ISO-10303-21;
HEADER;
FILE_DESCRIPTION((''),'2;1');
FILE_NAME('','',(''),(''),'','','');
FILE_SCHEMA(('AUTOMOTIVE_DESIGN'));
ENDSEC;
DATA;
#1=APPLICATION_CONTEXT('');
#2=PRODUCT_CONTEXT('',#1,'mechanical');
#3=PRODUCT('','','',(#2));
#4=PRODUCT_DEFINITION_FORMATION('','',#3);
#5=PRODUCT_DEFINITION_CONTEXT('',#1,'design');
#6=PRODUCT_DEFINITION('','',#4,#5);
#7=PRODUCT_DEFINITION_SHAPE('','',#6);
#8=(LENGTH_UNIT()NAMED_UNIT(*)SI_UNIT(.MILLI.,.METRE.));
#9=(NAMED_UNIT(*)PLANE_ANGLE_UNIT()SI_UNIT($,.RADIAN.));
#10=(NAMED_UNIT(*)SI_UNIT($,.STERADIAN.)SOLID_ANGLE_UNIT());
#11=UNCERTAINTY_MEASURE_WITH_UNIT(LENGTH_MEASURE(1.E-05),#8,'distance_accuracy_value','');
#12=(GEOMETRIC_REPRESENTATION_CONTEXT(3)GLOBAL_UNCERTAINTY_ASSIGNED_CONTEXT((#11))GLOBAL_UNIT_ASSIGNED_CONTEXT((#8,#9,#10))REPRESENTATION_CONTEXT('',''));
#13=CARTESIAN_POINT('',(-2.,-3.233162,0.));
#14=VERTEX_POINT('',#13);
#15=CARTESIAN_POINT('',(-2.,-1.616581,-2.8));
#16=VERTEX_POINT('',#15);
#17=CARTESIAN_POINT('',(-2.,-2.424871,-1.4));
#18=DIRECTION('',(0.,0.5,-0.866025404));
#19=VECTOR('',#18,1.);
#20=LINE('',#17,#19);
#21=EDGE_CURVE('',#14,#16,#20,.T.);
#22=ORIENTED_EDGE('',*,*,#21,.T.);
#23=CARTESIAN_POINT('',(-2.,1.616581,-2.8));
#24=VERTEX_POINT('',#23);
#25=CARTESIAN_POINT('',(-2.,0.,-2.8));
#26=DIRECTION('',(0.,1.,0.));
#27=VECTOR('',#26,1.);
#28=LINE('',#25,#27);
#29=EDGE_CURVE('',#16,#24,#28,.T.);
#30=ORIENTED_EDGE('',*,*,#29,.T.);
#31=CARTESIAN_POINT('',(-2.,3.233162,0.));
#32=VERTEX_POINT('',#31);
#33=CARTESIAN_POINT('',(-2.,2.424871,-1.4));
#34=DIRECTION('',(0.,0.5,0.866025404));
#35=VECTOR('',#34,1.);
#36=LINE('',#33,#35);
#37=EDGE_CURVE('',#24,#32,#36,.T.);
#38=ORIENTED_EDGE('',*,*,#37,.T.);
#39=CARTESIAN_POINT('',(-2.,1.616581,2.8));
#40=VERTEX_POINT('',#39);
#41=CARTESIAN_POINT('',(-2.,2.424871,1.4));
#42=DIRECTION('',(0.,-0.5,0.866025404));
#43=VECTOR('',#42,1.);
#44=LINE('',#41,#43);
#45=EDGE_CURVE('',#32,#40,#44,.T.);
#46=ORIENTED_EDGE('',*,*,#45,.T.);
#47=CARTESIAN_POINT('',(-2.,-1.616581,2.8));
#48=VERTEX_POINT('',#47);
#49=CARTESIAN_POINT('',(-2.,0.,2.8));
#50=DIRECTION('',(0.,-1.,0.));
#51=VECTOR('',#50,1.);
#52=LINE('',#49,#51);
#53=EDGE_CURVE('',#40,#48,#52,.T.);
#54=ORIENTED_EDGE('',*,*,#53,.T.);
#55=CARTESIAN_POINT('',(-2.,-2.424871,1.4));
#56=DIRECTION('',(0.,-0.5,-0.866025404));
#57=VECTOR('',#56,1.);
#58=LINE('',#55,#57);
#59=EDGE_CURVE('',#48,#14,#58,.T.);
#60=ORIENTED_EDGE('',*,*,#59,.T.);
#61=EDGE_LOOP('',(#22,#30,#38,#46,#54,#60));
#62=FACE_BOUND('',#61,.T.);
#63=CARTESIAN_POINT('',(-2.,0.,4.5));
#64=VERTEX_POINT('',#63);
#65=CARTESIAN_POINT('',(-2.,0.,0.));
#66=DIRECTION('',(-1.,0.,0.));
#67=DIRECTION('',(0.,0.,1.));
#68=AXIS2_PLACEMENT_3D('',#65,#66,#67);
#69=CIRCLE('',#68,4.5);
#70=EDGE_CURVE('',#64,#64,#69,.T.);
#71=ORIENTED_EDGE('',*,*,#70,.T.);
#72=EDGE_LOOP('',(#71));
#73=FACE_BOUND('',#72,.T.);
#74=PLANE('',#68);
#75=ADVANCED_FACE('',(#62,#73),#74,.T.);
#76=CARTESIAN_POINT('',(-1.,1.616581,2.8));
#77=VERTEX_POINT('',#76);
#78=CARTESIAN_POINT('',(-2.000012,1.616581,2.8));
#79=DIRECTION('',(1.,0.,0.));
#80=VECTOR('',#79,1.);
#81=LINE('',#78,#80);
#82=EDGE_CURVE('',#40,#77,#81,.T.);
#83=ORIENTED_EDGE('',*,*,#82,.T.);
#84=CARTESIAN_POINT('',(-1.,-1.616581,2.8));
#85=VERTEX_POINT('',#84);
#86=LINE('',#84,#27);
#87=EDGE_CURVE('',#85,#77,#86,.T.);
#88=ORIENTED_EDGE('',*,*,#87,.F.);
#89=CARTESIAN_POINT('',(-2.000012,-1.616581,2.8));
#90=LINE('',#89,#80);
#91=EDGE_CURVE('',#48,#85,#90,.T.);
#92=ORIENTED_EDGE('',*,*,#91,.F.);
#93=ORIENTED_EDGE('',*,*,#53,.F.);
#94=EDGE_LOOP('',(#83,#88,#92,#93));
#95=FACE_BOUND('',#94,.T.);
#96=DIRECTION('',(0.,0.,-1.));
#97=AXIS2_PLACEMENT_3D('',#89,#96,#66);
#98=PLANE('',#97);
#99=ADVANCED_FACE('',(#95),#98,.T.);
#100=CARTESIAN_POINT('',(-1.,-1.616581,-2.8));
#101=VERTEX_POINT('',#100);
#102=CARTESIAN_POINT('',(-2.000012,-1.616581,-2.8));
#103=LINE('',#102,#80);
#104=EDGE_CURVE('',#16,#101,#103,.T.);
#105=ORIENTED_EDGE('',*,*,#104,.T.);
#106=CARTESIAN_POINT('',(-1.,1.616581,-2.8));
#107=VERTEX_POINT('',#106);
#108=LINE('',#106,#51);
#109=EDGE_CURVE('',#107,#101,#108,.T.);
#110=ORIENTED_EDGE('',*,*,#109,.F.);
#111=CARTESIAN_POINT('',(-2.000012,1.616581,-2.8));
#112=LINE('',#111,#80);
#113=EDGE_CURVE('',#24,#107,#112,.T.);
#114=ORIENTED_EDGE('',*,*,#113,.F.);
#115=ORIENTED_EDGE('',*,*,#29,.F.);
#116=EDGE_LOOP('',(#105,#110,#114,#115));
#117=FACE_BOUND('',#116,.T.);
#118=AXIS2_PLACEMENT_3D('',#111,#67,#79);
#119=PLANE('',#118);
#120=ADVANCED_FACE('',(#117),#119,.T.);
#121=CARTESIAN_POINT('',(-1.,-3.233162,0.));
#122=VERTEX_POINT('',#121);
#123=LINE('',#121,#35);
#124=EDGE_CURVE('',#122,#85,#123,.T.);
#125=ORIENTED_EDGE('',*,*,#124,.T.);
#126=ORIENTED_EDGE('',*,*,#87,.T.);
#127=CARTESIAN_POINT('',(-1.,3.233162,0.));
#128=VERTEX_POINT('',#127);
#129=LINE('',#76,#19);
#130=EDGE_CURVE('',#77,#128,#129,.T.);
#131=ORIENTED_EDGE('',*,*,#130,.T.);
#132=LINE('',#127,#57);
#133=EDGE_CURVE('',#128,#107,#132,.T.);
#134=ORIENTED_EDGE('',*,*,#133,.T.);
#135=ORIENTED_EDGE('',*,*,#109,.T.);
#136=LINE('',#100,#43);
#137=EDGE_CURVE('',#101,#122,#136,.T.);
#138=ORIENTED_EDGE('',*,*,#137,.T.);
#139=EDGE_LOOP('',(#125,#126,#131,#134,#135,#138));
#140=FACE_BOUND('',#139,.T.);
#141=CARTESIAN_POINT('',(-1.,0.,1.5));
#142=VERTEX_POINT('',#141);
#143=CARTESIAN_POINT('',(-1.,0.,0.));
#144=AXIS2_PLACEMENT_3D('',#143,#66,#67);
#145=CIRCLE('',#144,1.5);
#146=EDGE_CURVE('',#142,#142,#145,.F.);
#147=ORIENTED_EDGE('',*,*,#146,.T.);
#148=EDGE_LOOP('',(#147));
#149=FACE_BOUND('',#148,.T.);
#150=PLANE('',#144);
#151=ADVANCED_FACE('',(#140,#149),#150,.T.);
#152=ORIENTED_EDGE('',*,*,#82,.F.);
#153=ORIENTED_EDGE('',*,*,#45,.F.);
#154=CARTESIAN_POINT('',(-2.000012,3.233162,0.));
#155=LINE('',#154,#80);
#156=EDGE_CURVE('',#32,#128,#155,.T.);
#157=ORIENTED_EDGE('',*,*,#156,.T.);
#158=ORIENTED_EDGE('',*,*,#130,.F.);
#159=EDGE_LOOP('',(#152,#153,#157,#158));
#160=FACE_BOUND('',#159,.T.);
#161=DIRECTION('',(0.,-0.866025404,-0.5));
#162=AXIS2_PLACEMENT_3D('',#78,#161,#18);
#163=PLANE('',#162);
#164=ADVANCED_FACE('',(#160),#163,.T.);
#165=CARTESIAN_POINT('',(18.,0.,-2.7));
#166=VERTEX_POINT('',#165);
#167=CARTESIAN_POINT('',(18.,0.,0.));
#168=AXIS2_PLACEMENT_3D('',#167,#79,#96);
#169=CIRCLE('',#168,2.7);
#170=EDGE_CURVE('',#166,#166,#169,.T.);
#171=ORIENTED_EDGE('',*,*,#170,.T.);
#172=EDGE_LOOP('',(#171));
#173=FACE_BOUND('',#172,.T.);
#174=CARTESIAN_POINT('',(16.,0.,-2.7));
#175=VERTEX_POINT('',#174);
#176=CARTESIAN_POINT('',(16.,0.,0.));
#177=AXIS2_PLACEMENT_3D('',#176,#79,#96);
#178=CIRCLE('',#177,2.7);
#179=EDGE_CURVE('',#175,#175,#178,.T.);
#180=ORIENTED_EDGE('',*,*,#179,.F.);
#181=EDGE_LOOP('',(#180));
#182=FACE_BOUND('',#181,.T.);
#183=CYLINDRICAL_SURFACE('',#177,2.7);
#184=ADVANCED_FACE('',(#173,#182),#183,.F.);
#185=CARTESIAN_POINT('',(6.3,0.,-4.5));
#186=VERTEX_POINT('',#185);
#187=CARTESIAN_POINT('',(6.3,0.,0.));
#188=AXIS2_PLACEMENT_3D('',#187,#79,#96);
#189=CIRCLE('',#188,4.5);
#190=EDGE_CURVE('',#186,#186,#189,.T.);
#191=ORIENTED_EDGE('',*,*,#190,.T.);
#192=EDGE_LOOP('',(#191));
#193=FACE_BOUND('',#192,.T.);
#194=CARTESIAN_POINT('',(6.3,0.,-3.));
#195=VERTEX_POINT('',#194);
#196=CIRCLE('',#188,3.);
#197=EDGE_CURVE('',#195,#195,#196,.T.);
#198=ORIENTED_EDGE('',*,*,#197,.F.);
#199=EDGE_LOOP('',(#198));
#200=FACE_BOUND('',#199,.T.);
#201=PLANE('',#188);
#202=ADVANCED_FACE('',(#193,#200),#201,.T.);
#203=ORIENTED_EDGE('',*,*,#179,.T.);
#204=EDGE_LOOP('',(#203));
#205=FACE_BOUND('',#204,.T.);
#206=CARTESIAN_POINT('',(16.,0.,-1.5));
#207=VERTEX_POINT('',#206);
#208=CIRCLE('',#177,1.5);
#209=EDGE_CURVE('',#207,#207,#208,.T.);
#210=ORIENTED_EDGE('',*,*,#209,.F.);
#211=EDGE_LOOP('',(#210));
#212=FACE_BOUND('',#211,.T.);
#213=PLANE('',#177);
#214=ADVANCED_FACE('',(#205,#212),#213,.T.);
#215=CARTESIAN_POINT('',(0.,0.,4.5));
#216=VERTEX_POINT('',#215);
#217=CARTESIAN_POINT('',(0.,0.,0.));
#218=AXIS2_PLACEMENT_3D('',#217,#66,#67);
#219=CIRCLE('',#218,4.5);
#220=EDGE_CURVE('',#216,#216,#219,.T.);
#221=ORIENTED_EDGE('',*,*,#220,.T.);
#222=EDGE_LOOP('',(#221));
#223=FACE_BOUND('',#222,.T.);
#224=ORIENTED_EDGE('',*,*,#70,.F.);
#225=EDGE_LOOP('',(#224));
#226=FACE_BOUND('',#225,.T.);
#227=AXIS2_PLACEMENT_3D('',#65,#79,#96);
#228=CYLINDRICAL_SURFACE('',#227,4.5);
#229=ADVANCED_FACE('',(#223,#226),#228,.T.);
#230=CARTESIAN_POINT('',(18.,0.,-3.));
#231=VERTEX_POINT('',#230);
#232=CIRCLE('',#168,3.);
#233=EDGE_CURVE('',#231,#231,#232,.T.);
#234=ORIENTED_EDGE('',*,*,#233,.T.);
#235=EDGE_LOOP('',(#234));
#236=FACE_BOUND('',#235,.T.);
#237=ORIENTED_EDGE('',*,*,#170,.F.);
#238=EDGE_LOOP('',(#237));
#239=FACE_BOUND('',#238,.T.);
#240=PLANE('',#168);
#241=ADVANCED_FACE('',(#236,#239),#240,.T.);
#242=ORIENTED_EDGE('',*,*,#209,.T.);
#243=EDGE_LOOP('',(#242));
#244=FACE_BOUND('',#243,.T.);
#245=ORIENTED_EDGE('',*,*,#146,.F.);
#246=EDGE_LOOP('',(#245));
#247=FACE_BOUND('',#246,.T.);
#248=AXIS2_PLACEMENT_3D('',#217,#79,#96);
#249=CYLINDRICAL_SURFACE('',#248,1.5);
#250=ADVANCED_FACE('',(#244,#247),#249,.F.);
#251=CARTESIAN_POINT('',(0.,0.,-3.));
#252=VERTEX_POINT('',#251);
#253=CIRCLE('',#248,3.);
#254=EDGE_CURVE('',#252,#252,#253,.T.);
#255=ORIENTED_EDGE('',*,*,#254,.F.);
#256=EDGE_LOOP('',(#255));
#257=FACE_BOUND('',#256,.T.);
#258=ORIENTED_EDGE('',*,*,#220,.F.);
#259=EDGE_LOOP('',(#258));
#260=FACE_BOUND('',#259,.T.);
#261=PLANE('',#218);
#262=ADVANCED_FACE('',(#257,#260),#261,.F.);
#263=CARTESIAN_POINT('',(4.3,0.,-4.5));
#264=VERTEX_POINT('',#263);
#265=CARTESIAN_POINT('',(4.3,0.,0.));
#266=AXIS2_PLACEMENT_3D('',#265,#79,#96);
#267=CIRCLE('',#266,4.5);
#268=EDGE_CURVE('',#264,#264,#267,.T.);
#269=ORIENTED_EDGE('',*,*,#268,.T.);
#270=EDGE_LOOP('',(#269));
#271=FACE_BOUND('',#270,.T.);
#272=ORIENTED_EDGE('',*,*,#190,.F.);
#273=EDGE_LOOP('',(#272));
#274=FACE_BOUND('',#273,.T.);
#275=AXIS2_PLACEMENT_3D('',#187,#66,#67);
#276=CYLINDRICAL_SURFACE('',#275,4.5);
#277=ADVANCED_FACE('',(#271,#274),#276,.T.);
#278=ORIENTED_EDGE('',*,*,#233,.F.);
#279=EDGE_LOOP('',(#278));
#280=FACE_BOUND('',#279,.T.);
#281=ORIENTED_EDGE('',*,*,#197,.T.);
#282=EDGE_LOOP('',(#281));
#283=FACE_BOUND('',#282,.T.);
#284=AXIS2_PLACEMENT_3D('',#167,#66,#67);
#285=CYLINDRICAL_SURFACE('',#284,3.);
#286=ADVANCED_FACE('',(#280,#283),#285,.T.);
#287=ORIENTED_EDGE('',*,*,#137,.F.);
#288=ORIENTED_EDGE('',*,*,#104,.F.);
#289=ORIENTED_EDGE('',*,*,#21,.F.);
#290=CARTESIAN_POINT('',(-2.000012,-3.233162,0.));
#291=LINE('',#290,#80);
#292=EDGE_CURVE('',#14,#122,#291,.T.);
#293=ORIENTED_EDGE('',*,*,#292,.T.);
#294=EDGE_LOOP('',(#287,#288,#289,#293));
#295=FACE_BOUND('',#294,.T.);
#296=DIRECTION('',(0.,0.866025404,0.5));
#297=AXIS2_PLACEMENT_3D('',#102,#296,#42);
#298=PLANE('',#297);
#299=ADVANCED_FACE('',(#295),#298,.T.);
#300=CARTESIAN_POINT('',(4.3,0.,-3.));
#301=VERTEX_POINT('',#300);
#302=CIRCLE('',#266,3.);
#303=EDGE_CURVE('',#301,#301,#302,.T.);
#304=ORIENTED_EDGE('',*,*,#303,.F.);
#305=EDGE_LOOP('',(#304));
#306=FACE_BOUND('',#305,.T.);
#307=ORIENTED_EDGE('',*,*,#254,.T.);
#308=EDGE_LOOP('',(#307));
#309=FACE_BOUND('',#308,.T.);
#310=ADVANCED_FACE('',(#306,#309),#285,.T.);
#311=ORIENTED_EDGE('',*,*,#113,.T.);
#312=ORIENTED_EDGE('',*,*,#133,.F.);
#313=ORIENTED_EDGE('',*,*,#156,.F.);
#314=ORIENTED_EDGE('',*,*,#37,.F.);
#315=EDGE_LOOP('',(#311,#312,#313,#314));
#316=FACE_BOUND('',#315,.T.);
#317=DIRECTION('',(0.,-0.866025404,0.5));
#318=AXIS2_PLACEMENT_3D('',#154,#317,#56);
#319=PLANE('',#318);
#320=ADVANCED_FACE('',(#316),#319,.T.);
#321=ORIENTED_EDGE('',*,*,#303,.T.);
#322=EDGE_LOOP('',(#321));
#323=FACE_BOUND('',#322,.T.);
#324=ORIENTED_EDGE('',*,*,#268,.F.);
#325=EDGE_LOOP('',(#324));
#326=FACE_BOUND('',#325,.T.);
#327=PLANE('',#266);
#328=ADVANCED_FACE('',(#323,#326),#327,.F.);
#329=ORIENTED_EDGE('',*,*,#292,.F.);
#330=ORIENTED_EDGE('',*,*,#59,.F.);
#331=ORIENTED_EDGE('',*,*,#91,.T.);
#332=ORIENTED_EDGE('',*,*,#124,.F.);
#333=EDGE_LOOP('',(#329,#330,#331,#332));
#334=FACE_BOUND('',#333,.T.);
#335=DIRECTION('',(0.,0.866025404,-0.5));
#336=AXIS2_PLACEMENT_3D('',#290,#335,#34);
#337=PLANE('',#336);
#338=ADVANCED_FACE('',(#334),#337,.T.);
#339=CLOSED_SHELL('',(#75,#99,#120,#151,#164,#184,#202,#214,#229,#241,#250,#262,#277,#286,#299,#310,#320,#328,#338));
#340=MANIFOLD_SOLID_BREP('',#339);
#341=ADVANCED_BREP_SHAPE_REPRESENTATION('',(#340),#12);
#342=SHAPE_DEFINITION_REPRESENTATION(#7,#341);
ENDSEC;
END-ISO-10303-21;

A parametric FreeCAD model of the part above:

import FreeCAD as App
import Part
import Sketcher
from FreeCAD import Vector
Q = App.Units.Quantity


def add_polygon(sketch, points):
    """Adds a closed chain of lines whose ends are joined by coincident constraints."""
    first, n = sketch.GeometryCount, len(points)
    for a, b in zip(points, points[1:] + points[:1]):
        sketch.addGeometry(Part.LineSegment(App.Vector(*a, 0), App.Vector(*b, 0)), False)
    for i in range(n):
        sketch.addConstraint(Sketcher.Constraint("Coincident", first + i, 2, first + (i + 1) % n, 1))

doc = App.newDocument("Part")
body = doc.addObject("PartDesign::Body", "Body")

# Sketch on YZ plane
sketch1 = body.newObject("Sketcher::SketchObject", "Sketch")
sketch1.AttachmentSupport = (doc.getObject("YZ_Plane"), [""])
sketch1.MapMode = "FlatFace"
sketch1.addGeometry(Part.Circle(Vector(0, 0, 0), Vector(0, 0, 1), 3), False)
sketch1.addConstraint(Sketcher.Constraint("Coincident", 0, 3, -1, 1))
sketch1.addConstraint(Sketcher.Constraint("Diameter", 0, 6.0))
pad1 = body.newObject("PartDesign::Pad", "Pad")
pad1.Profile = sketch1
pad1.Length = 18

# Sketch on YZ plane
sketch2 = body.newObject("Sketcher::SketchObject", "Sketch001")
sketch2.AttachmentSupport = (doc.getObject("YZ_Plane"), [""])
sketch2.MapMode = "FlatFace"
sketch2.AttachmentOffset = App.Placement(Vector(0, 0, 18), App.Rotation())
sketch2.addGeometry(Part.Circle(Vector(0, 0, 0), Vector(0, 0, 1), 2.7), False)
sketch2.addConstraint(Sketcher.Constraint("Coincident", 0, 3, -1, 1))
sketch2.addConstraint(Sketcher.Constraint("Diameter", 0, 5.4))
pocket1 = body.newObject("PartDesign::Pocket", "Pocket")
pocket1.Profile = sketch2
pocket1.Length = 2

# Sketch on YZ plane
sketch3 = body.newObject("Sketcher::SketchObject", "Sketch002")
sketch3.AttachmentSupport = (doc.getObject("YZ_Plane"), [""])
sketch3.MapMode = "FlatFace"
sketch3.AttachmentOffset = App.Placement(Vector(0, 0, 16), App.Rotation())
sketch3.addGeometry(Part.Circle(Vector(0, 0, 0), Vector(0, 0, 1), 1.5), False)
sketch3.addConstraint(Sketcher.Constraint("Coincident", 0, 3, -1, 1))
sketch3.addConstraint(Sketcher.Constraint("Diameter", 0, 3.0))
pocket2 = body.newObject("PartDesign::Pocket", "Pocket001")
pocket2.Profile = sketch3
pocket2.Type = "ThroughAll"
pocket2.Midplane = True

# Sketch on YZ plane
sketch4 = body.newObject("Sketcher::SketchObject", "Sketch003")
sketch4.AttachmentSupport = (doc.getObject("YZ_Plane"), [""])
sketch4.MapMode = "FlatFace"
sketch4.addGeometry(Part.Circle(Vector(0, 0, 0), Vector(0, 0, 1), 4.5), False)
sketch4.addConstraint(Sketcher.Constraint("Coincident", 0, 3, -1, 1))
sketch4.addConstraint(Sketcher.Constraint("Diameter", 0, 9.0))
pad2 = body.newObject("PartDesign::Pad", "Pad001")
pad2.Profile = sketch4
pad2.Length = 2
pad2.Reversed = True

# Sketch on YZ plane
sketch5 = body.newObject("Sketcher::SketchObject", "Sketch004")
sketch5.AttachmentSupport = (doc.getObject("YZ_Plane"), [""])
sketch5.MapMode = "FlatFace"
sketch5.AttachmentOffset = App.Placement(Vector(0, 0, 6.3), App.Rotation())
sketch5.addGeometry(Part.Circle(Vector(0, 0, 0), Vector(0, 0, 1), 4.5), False)
sketch5.addConstraint(Sketcher.Constraint("Coincident", 0, 3, -1, 1))
sketch5.addConstraint(Sketcher.Constraint("Diameter", 0, 9.0))
pad3 = body.newObject("PartDesign::Pad", "Pad002")
pad3.Profile = sketch5
pad3.Length = 2
pad3.Reversed = True

# Sketch on YZ plane
sketch6 = body.newObject("Sketcher::SketchObject", "Sketch005")
sketch6.AttachmentSupport = (doc.getObject("YZ_Plane"), [""])
sketch6.MapMode = "FlatFace"
sketch6.AttachmentOffset = App.Placement(Vector(0, 0, -2), App.Rotation())
sketch6.addGeometry(Part.Circle(Vector(0, 0, 0), Vector(0, 0, 1), 1.5), False)
sketch6.addConstraint(Sketcher.Constraint("Coincident", 0, 3, -1, 1))
sketch6.addConstraint(Sketcher.Constraint("Diameter", 0, 3.0))
pocket3 = body.newObject("PartDesign::Pocket", "Pocket002")
pocket3.Profile = sketch6
pocket3.Type = "ThroughAll"
pocket3.Midplane = True

# Sketch on YZ plane
sketch7 = body.newObject("Sketcher::SketchObject", "Sketch006")
sketch7.AttachmentSupport = (doc.getObject("YZ_Plane"), [""])
sketch7.MapMode = "FlatFace"
sketch7.AttachmentOffset = App.Placement(Vector(0, 0, -2), App.Rotation())
add_polygon(sketch7, [(-1.616581, 2.8), (1.616581, 2.8), (3.233162, 0), (1.616581, -2.8), (-1.616581, -2.8), (-3.233162, 0)])  # lines 0-5
sketch7.addConstraint(Sketcher.Constraint("Horizontal", 0))
sketch7.addConstraint(Sketcher.Constraint("Horizontal", 3))
sketch7.addConstraint(Sketcher.Constraint("Symmetric", 0, 2, 3, 2, -1, 1))
sketch7.addConstraint(Sketcher.Constraint("Symmetric", 1, 2, 4, 2, -1, 1))
sketch7.addConstraint(Sketcher.Constraint("PointOnObject", 1, 2, -1))
sketch7.addConstraint(Sketcher.Constraint("Parallel", 2, 5))
sketch7.addConstraint(Sketcher.Constraint("Vertical", 0, 2, 2, 2))
sketch7.addConstraint(Sketcher.Constraint("Angle", 1, Q("-60 deg")))
sketch7.addConstraint(Sketcher.Constraint("DistanceY", -1, 1, 0, 2, 2.8))
sketch7.addConstraint(Sketcher.Constraint("DistanceX", 0, 1, 0, 2, 3.233162))
pocket4 = body.newObject("PartDesign::Pocket", "Pocket003")
pocket4.Profile = sketch7
pocket4.Type = "TwoLengths"
pocket4.Length = 21.988092
pocket4.Length2 = 1

doc.recompute()
